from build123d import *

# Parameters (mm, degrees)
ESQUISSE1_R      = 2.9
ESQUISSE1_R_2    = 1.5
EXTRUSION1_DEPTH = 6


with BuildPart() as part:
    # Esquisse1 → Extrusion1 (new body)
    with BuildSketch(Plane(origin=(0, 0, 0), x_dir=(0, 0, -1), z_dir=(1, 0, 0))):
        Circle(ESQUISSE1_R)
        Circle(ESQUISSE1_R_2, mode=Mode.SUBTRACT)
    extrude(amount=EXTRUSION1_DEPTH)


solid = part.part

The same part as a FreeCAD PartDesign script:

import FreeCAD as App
import Part
import Sketcher

V = App.Vector
Q = App.Units.Quantity

doc = App.newDocument("Part")
body = doc.addObject("PartDesign::Body", "Body")

sketch1 = body.newObject("Sketcher::SketchObject", "Sketch")
sketch1.AttachmentSupport = (doc.getObject("YZ_Plane"), [""])
sketch1.MapMode = "FlatFace"
sketch1.addGeometry(Part.Circle(V(0, 0, 0), V(0, 0, 1), 2.9), False)
sketch1.addGeometry(Part.Circle(V(0, 0, 0), V(0, 0, 1), 1.5), False)
sketch1.addConstraint(Sketcher.Constraint("Coincident", 0, 3, -1, 1))
sketch1.addConstraint(Sketcher.Constraint("Coincident", 1, 3, -1, 1))
sketch1.addConstraint(Sketcher.Constraint("Diameter", 1, Q("3 mm")))
sketch1.addConstraint(Sketcher.Constraint("Diameter", 0, Q("5.8 mm")))
pad1 = body.newObject("PartDesign::Pad", "Pad")
pad1.Profile = sketch1
pad1.Length = 6

doc.recompute()
